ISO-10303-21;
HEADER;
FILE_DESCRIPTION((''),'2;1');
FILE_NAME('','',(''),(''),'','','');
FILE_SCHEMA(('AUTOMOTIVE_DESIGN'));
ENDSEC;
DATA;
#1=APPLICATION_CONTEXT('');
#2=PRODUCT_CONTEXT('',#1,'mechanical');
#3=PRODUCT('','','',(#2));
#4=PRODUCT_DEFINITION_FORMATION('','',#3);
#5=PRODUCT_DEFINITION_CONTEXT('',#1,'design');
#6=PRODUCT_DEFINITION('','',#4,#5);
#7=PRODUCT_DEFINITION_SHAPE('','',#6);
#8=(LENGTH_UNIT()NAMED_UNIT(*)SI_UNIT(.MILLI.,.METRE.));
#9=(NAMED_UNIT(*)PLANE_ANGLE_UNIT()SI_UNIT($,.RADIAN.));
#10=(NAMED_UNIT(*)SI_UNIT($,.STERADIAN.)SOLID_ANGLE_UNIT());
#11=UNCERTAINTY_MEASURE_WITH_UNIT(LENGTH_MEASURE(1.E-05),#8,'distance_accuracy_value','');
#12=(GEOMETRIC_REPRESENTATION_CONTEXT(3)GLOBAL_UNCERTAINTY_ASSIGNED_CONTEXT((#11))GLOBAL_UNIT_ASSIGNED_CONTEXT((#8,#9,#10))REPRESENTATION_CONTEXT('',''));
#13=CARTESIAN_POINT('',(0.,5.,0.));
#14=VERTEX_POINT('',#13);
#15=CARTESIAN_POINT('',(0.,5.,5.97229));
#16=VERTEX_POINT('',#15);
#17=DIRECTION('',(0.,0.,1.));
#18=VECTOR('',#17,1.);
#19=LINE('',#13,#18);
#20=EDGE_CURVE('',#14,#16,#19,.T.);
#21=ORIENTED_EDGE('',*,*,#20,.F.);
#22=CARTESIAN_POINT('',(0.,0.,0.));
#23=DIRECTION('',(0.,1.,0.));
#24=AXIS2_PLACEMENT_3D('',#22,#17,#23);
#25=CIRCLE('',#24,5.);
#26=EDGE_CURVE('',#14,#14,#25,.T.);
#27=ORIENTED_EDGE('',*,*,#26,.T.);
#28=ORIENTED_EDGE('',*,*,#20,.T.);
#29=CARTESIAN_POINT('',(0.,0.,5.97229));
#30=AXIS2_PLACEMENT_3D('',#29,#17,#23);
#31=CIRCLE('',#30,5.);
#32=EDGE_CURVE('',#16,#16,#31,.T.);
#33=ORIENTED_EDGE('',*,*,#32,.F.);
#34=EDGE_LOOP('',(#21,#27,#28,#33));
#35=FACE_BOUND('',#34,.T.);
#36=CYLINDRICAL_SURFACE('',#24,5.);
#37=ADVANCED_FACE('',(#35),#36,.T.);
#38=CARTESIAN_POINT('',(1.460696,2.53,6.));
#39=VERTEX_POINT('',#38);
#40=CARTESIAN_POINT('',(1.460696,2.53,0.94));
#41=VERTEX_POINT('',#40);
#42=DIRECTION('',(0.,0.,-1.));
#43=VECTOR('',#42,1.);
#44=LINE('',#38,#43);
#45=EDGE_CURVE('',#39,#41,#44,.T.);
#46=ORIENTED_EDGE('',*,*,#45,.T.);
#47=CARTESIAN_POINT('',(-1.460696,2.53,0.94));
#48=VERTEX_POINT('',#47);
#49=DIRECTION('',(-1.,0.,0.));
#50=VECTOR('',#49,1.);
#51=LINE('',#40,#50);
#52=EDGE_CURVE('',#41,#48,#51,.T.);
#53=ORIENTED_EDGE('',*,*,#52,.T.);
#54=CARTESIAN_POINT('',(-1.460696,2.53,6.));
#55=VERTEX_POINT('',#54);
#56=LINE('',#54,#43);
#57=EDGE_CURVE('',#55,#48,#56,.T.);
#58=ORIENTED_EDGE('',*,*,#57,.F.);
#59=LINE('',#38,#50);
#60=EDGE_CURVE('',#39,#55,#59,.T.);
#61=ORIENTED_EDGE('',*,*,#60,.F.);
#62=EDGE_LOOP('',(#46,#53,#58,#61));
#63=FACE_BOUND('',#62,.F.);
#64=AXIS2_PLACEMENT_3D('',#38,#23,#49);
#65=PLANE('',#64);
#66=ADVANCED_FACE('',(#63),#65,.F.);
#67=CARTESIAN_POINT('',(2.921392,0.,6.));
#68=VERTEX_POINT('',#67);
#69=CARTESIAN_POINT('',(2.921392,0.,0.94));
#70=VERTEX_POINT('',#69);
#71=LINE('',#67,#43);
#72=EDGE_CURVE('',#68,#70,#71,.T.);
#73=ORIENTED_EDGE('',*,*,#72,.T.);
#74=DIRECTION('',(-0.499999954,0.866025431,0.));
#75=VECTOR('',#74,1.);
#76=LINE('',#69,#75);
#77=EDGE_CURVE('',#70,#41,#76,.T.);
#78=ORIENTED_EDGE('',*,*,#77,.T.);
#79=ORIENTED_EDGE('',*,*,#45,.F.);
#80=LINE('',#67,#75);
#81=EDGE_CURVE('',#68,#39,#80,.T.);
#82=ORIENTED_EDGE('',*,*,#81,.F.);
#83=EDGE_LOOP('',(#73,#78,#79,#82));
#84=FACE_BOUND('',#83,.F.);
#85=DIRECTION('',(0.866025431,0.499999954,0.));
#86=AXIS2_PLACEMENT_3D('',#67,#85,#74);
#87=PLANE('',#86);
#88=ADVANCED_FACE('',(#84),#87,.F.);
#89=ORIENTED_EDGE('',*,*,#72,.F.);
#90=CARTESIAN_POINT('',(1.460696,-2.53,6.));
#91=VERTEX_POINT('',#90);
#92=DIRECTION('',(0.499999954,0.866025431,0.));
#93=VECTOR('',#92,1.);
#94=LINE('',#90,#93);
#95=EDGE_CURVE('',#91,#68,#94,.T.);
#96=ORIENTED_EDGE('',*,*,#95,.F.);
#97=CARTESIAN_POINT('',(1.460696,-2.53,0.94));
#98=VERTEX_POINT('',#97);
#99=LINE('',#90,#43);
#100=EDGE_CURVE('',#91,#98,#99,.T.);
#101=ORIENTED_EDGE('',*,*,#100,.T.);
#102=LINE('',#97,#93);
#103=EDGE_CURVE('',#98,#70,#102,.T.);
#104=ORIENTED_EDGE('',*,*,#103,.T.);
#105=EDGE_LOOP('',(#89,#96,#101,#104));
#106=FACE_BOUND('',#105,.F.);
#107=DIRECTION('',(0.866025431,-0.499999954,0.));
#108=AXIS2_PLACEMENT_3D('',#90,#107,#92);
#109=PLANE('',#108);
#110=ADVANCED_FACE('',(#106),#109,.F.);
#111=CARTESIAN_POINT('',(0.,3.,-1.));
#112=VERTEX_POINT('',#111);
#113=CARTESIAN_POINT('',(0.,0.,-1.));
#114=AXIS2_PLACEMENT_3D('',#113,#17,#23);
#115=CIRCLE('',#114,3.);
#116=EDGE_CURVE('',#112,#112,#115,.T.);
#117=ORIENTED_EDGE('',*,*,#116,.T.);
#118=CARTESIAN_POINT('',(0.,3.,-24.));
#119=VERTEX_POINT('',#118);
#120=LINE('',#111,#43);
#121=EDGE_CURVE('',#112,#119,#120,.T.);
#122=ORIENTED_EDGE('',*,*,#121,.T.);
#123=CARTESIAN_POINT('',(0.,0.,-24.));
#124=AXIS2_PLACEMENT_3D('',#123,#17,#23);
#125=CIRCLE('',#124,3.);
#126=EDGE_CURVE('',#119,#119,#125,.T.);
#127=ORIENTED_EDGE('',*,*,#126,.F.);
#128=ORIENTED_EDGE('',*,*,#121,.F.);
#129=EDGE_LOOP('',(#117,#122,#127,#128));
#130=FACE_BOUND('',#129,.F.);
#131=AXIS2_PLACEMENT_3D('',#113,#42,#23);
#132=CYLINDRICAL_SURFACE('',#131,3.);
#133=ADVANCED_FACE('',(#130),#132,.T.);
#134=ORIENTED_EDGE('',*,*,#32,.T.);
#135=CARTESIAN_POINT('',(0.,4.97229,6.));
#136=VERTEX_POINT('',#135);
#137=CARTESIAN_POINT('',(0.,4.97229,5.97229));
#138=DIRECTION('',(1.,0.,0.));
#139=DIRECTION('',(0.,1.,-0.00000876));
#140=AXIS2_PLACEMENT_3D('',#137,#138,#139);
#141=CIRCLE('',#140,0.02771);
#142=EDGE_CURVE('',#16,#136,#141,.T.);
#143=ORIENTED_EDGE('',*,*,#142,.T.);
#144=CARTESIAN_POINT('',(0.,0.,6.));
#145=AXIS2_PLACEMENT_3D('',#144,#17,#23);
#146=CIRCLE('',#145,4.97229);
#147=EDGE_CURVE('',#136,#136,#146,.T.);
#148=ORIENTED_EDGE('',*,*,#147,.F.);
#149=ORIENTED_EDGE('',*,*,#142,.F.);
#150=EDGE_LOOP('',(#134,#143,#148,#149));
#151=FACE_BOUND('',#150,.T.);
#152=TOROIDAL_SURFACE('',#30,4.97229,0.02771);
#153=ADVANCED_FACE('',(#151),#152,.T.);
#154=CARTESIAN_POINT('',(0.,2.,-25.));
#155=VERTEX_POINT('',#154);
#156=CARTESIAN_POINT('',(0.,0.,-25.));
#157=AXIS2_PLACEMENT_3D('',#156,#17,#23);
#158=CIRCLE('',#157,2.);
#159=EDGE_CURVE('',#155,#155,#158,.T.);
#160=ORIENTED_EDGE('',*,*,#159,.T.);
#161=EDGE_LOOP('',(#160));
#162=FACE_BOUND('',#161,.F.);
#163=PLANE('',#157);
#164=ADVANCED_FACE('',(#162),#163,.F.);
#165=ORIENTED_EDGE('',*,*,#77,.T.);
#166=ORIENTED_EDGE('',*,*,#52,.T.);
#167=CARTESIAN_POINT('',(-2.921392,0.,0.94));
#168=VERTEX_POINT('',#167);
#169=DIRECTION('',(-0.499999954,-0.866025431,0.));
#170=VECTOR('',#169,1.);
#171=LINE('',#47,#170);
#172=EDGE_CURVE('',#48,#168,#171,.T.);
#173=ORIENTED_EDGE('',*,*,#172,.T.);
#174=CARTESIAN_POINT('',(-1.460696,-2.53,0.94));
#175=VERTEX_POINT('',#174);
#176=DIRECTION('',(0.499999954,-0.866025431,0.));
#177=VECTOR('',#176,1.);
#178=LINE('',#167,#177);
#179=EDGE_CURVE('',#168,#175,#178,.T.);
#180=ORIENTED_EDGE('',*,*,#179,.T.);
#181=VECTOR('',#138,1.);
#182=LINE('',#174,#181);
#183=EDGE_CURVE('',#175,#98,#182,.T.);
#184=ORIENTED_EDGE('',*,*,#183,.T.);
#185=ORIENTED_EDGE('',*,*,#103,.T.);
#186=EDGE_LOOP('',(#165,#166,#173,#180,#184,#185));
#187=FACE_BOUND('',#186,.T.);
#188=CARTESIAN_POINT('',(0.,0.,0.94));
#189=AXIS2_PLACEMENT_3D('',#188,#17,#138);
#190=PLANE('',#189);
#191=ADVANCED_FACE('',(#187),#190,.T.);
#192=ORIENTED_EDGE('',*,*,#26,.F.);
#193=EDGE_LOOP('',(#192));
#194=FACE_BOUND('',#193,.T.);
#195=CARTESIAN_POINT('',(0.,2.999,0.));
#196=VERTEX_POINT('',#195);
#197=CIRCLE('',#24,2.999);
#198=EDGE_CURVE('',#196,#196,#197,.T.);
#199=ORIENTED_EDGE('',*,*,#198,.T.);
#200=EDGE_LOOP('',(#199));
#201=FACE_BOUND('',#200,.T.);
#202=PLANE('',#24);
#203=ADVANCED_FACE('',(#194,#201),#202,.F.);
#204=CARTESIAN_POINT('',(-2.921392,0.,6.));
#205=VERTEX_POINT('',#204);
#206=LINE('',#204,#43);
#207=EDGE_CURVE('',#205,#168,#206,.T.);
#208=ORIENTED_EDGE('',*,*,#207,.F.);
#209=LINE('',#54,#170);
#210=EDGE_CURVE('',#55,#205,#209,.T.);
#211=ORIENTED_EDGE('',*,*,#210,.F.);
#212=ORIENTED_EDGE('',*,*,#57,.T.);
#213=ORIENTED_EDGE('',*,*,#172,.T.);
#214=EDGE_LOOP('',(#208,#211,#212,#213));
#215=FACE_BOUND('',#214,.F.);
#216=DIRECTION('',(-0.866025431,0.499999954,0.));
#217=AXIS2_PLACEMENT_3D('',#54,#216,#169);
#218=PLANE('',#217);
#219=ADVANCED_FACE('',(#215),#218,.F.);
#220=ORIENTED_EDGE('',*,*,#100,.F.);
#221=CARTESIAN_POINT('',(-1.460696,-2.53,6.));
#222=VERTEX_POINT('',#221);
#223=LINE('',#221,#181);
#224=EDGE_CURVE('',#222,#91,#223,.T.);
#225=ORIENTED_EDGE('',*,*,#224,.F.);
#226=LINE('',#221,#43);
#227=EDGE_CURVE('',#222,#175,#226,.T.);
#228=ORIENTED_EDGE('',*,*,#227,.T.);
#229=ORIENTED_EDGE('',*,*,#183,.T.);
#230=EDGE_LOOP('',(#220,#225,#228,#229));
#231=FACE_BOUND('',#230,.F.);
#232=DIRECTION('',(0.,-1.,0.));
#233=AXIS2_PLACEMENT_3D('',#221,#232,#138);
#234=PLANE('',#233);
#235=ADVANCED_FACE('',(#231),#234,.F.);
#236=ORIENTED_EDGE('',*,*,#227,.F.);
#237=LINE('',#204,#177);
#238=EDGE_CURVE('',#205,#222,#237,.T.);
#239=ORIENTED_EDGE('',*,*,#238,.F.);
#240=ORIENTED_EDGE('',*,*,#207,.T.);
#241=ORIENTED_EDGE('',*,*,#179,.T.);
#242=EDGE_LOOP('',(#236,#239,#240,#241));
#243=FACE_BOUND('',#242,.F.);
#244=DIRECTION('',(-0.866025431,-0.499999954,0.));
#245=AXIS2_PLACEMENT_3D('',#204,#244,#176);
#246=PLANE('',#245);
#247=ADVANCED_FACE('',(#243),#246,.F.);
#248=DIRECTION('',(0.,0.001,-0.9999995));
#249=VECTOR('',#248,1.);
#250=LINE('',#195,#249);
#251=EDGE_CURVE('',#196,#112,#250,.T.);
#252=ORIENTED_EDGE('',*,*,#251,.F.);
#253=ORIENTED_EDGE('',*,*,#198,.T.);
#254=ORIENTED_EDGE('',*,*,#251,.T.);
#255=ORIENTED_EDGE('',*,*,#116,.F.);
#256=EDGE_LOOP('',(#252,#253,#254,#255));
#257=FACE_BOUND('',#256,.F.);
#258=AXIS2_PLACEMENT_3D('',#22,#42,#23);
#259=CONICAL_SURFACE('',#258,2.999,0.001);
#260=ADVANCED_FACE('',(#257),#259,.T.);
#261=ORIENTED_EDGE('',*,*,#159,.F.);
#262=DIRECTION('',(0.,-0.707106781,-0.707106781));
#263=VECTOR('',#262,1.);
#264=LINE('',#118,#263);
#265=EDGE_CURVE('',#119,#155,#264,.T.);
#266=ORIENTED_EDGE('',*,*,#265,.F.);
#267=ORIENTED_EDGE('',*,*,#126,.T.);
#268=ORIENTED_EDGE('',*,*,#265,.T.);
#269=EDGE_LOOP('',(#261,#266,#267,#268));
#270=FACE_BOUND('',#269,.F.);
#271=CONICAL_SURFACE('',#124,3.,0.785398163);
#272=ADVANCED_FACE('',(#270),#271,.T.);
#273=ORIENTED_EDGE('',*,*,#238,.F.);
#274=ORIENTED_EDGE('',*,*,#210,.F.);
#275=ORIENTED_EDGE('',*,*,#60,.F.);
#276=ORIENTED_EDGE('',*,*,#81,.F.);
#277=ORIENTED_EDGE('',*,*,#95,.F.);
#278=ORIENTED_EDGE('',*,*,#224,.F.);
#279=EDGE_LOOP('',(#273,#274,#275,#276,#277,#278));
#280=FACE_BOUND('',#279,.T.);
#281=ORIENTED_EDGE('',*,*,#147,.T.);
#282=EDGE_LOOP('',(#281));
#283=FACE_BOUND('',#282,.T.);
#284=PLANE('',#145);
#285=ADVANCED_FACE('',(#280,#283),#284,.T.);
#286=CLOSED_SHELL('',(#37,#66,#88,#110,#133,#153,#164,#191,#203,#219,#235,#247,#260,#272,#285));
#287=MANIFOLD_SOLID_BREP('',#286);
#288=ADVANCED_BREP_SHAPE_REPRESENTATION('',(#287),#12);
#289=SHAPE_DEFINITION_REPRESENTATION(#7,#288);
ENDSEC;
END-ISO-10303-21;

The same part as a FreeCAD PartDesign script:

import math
import FreeCAD as App
import Part
import Sketcher

V = App.Vector
Q = App.Units.Quantity

doc = App.newDocument("Part")
body = doc.addObject("PartDesign::Body", "Body")

sketch1 = body.newObject("Sketcher::SketchObject", "Sketch")
sketch1.AttachmentSupport = (doc.getObject("YZ_Plane"), [""])
sketch1.MapMode = "FlatFace"
sketch1.addGeometry(Part.LineSegment(V(2.999, 0, 0), V(5, 0, 0)), False)
sketch1.addGeometry(Part.LineSegment(V(5, 0, 0), V(5, 5.972, 0)), False)
sketch1.addGeometry(Part.ArcOfCircle(Part.Circle(V(4.972, 5.972, 0), V(0, 0, 1), 0.028), math.radians(0), math.radians(90)), False)
sketch1.addGeometry(Part.LineSegment(V(4.972, 6, 0), V(0, 6, 0)), False)
sketch1.addGeometry(Part.LineSegment(V(0, 6, 0), V(0, -25, 0)), False)
sketch1.addGeometry(Part.LineSegment(V(0, -25, 0), V(2, -25, 0)), False)
sketch1.addGeometry(Part.LineSegment(V(2, -25, 0), V(3, -24, 0)), False)
sketch1.addGeometry(Part.LineSegment(V(3, -24, 0), V(3, -1, 0)), False)
sketch1.addGeometry(Part.LineSegment(V(3, -1, 0), V(2.999, 0, 0)), False)
sketch1.addConstraint(Sketcher.Constraint("Coincident", 0, 2, 1, 1))
sketch1.addConstraint(Sketcher.Constraint("Coincident", 1, 2, 2, 1))
sketch1.addConstraint(Sketcher.Constraint("Coincident", 2, 2, 3, 1))
sketch1.addConstraint(Sketcher.Constraint("Coincident", 3, 2, 4, 1))
sketch1.addConstraint(Sketcher.Constraint("Coincident", 4, 2, 5, 1))
sketch1.addConstraint(Sketcher.Constraint("Coincident", 5, 2, 6, 1))
sketch1.addConstraint(Sketcher.Constraint("Coincident", 6, 2, 7, 1))
sketch1.addConstraint(Sketcher.Constraint("Coincident", 7, 2, 8, 1))
sketch1.addConstraint(Sketcher.Constraint("Coincident", 8, 2, 0, 1))
sketch1.addConstraint(Sketcher.Constraint("Horizontal", 0))
sketch1.addConstraint(Sketcher.Constraint("Vertical", 1))
sketch1.addConstraint(Sketcher.Constraint("Horizontal", 3))
sketch1.addConstraint(Sketcher.Constraint("Vertical", 4))
sketch1.addConstraint(Sketcher.Constraint("Horizontal", 5))
sketch1.addConstraint(Sketcher.Constraint("Vertical", 7))
sketch1.addConstraint(Sketcher.Constraint("PointOnObject", 0, 2, -1))
sketch1.addConstraint(Sketcher.Constraint("PointOnObject", 3, 2, -2))
sketch1.addConstraint(Sketcher.Constraint("Horizontal", 2, 3, 1, 2))
sketch1.addConstraint(Sketcher.Constraint("DistanceX", 5, 1, 5, 2, 2.0))
sketch1.addConstraint(Sketcher.Constraint("DistanceY", 4, 2, 4, 1, 31.0))
sketch1.addConstraint(Sketcher.Constraint("DistanceY", 7, 1, 7, 2, 23.0))
sketch1.addConstraint(Sketcher.Constraint("Angle", 6, Q("45 deg")))
sketch1.addConstraint(Sketcher.Constraint("Distance", 8, 1.0))
sketch1.addConstraint(Sketcher.Constraint("DistanceX", -1, 1, 0, 2, 5.0))
sketch1.addConstraint(Sketcher.Constraint("DistanceY", -1, 1, 2, 2, 6.0))
sketch1.addConstraint(Sketcher.Constraint("DistanceX", 0, 1, 0, 2, 2.001))
sketch1.addConstraint(Sketcher.Constraint("Radius", 2, 0.02771))
sketch1.addConstraint(Sketcher.Constraint("DistanceX", 3, 2, 3, 1, 4.97229))
revolution = body.newObject("PartDesign::Revolution", "Revolution")
revolution.Profile = sketch1
revolution.ReferenceAxis = (sketch1, ["V_Axis"])
revolution.Angle = 360

sketch2 = body.newObject("Sketcher::SketchObject", "Sketch001")
sketch2.AttachmentSupport = (doc.getObject("XY_Plane"), [""])
sketch2.MapMode = "FlatFace"
sketch2.AttachmentOffset = App.Placement(V(0, 0, 6), App.Rotation())
sketch2.addGeometry(Part.LineSegment(V(2.9, 0, 0), V(1.5, 2.5, 0)), False)
sketch2.addGeometry(Part.LineSegment(V(1.5, 2.5, 0), V(-1.5, 2.5, 0)), False)
sketch2.addGeometry(Part.LineSegment(V(-1.5, 2.5, 0), V(-2.9, 0, 0)), False)
sketch2.addGeometry(Part.LineSegment(V(-2.9, 0, 0), V(-1.5, -2.5, 0)), False)
sketch2.addGeometry(Part.LineSegment(V(-1.5, -2.5, 0), V(1.5, -2.5, 0)), False)
sketch2.addGeometry(Part.LineSegment(V(1.5, -2.5, 0), V(2.9, 0, 0)), False)
sketch2.addConstraint(Sketcher.Constraint("Coincident", 0, 2, 1, 1))
sketch2.addConstraint(Sketcher.Constraint("Coincident", 1, 2, 2, 1))
sketch2.addConstraint(Sketcher.Constraint("Coincident", 2, 2, 3, 1))
sketch2.addConstraint(Sketcher.Constraint("Coincident", 3, 2, 4, 1))
sketch2.addConstraint(Sketcher.Constraint("Coincident", 4, 2, 5, 1))
sketch2.addConstraint(Sketcher.Constraint("Coincident", 5, 2, 0, 1))
sketch2.addConstraint(Sketcher.Constraint("Horizontal", 1))
sketch2.addConstraint(Sketcher.Constraint("Horizontal", 4))
sketch2.addConstraint(Sketcher.Constraint("Symmetric", 0, 2, 3, 2, -1, 1))
sketch2.addConstraint(Sketcher.Constraint("Symmetric", 2, 2, 5, 2, -1, 1))
sketch2.addConstraint(Sketcher.Constraint("PointOnObject", 2, 2, -1))
sketch2.addConstraint(Sketcher.Constraint("Parallel", 2, 5))
sketch2.addConstraint(Sketcher.Constraint("Vertical", 1, 2, 3, 2))
sketch2.addConstraint(Sketcher.Constraint("Angle", 0, Q("119.999997 deg")))
sketch2.addConstraint(Sketcher.Constraint("DistanceY", -1, 1, 0, 2, 2.53))
sketch2.addConstraint(Sketcher.Constraint("DistanceX", 1, 2, 1, 1, 2.921392))
pocket1 = body.newObject("PartDesign::Pocket", "Pocket")
pocket1.Profile = sketch2
pocket1.Length = 5.06

doc.recompute()
